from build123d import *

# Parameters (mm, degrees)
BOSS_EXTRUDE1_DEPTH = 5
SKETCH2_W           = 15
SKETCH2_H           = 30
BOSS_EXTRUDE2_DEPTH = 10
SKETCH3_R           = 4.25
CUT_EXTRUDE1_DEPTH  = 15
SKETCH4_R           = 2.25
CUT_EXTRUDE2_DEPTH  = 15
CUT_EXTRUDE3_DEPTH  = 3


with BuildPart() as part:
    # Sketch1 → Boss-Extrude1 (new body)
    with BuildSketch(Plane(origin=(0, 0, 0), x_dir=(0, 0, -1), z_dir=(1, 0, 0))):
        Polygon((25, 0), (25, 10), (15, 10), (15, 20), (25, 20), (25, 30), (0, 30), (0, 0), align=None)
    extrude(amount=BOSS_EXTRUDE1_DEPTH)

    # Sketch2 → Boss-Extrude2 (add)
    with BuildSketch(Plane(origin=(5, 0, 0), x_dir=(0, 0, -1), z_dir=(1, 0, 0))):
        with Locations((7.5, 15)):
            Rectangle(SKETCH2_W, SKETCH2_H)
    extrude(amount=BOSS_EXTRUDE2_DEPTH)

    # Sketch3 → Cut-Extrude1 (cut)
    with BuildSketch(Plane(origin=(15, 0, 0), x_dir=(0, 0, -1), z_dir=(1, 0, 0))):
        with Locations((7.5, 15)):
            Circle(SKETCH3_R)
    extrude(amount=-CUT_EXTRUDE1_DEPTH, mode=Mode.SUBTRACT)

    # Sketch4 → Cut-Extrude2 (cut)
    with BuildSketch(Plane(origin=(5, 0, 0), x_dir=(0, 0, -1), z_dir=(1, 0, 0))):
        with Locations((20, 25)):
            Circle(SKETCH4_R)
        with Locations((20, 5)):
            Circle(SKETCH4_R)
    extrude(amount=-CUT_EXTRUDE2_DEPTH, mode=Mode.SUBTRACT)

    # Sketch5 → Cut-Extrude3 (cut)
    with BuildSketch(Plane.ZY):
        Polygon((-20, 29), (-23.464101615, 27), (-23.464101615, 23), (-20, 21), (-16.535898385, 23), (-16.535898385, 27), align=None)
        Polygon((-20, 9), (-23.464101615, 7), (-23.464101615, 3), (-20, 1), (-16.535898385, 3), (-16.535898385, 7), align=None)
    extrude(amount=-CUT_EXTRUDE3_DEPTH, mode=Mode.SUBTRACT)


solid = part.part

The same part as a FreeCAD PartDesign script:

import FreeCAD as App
import Part
import Sketcher

V = App.Vector
Q = App.Units.Quantity

doc = App.newDocument("Part")
body = doc.addObject("PartDesign::Body", "Body")

# Sketch on YZ plane
sketch1 = body.newObject("Sketcher::SketchObject", "Sketch")
sketch1.AttachmentSupport = (doc.getObject("YZ_Plane"), [""])
sketch1.MapMode = "FlatFace"
sketch1.addGeometry(Part.LineSegment(V(0, -25, 0), V(10, -25, 0)), False)
sketch1.addGeometry(Part.LineSegment(V(10, -25, 0), V(10, -15, 0)), False)
sketch1.addGeometry(Part.LineSegment(V(10, -15, 0), V(20, -15, 0)), False)
sketch1.addGeometry(Part.LineSegment(V(20, -15, 0), V(20, -25, 0)), False)
sketch1.addGeometry(Part.LineSegment(V(20, -25, 0), V(30, -25, 0)), False)
sketch1.addGeometry(Part.LineSegment(V(30, -25, 0), V(30, 0, 0)), False)
sketch1.addGeometry(Part.LineSegment(V(30, 0, 0), V(0, 0, 0)), False)
sketch1.addGeometry(Part.LineSegment(V(0, 0, 0), V(0, -25, 0)), False)
sketch1.addConstraint(Sketcher.Constraint("Coincident", 0, 2, 1, 1))
sketch1.addConstraint(Sketcher.Constraint("Coincident", 1, 2, 2, 1))
sketch1.addConstraint(Sketcher.Constraint("Coincident", 2, 2, 3, 1))
sketch1.addConstraint(Sketcher.Constraint("Coincident", 3, 2, 4, 1))
sketch1.addConstraint(Sketcher.Constraint("Coincident", 4, 2, 5, 1))
sketch1.addConstraint(Sketcher.Constraint("Coincident", 5, 2, 6, 1))
sketch1.addConstraint(Sketcher.Constraint("Coincident", 6, 2, 7, 1))
sketch1.addConstraint(Sketcher.Constraint("Coincident", 7, 2, 0, 1))
sketch1.addConstraint(Sketcher.Constraint("Horizontal", 0))
sketch1.addConstraint(Sketcher.Constraint("Vertical", 1))
sketch1.addConstraint(Sketcher.Constraint("Horizontal", 2))
sketch1.addConstraint(Sketcher.Constraint("Vertical", 3))
sketch1.addConstraint(Sketcher.Constraint("Horizontal", 4))
sketch1.addConstraint(Sketcher.Constraint("Vertical", 5))
sketch1.addConstraint(Sketcher.Constraint("Horizontal", 6))
sketch1.addConstraint(Sketcher.Constraint("Vertical", 7))
sketch1.addConstraint(Sketcher.Constraint("Coincident", 6, 2, -1, 1))
sketch1.addConstraint(Sketcher.Constraint("Horizontal", 0, 2, 3, 2))
sketch1.addConstraint(Sketcher.Constraint("Equal", 0, 2))
sketch1.addConstraint(Sketcher.Constraint("Equal", 2, 4))
sketch1.addConstraint(Sketcher.Constraint("Equal", 4, 1))
sketch1.addConstraint(Sketcher.Constraint("DistanceX", 0, 1, 0, 2, Q("10 mm")))
sketch1.addConstraint(Sketcher.Constraint("DistanceY", 5, 1, 5, 2, Q("25 mm")))
pad1 = body.newObject("PartDesign::Pad", "Pad")
pad1.Profile = sketch1
pad1.Length = 5

# Sketch on YZ plane
sketch2 = body.newObject("Sketcher::SketchObject", "Sketch001")
sketch2.AttachmentSupport = (doc.getObject("YZ_Plane"), [""])
sketch2.MapMode = "FlatFace"
sketch2.AttachmentOffset = App.Placement(V(0, 0, 5), App.Rotation())
sketch2.addGeometry(Part.LineSegment(V(30, 0, 0), V(0, 0, 0)), False)
sketch2.addGeometry(Part.LineSegment(V(0, 0, 0), V(0, -15, 0)), False)
sketch2.addGeometry(Part.LineSegment(V(0, -15, 0), V(30, -15, 0)), False)
sketch2.addGeometry(Part.LineSegment(V(30, -15, 0), V(30, 0, 0)), False)
sketch2.addConstraint(Sketcher.Constraint("Coincident", 0, 2, 1, 1))
sketch2.addConstraint(Sketcher.Constraint("Coincident", 1, 2, 2, 1))
sketch2.addConstraint(Sketcher.Constraint("Coincident", 2, 2, 3, 1))
sketch2.addConstraint(Sketcher.Constraint("Coincident", 3, 2, 0, 1))
sketch2.addConstraint(Sketcher.Constraint("Horizontal", 0))
sketch2.addConstraint(Sketcher.Constraint("Vertical", 1))
sketch2.addConstraint(Sketcher.Constraint("Horizontal", 2))
sketch2.addConstraint(Sketcher.Constraint("Vertical", 3))
sketch2.addConstraint(Sketcher.Constraint("Coincident", 0, 2, -1, 1))
sketch2.addConstraint(Sketcher.Constraint("DistanceX", 0, 2, 0, 1, Q("30 mm")))
sketch2.addConstraint(Sketcher.Constraint("DistanceY", 1, 2, 1, 1, Q("15 mm")))
pad2 = body.newObject("PartDesign::Pad", "Pad001")
pad2.Profile = sketch2
pad2.Length = 10

# Sketch on YZ plane
sketch3 = body.newObject("Sketcher::SketchObject", "Sketch002")
sketch3.AttachmentSupport = (doc.getObject("YZ_Plane"), [""])
sketch3.MapMode = "FlatFace"
sketch3.AttachmentOffset = App.Placement(V(0, 0, 15), App.Rotation())
sketch3.addGeometry(Part.Circle(V(15, -7.5, 0), V(0, 0, 1), 4.2), False)
sketch3.addConstraint(Sketcher.Constraint("Diameter", 0, Q("8.5 mm")))
sketch3.addConstraint(Sketcher.Constraint("DistanceX", -1, 1, 0, 3, Q("15 mm")))
sketch3.addConstraint(Sketcher.Constraint("DistanceY", 0, 3, -1, 1, Q("7.5 mm")))
pocket1 = body.newObject("PartDesign::Pocket", "Pocket")
pocket1.Profile = sketch3
pocket1.Length = 15

# Sketch on YZ plane
sketch4 = body.newObject("Sketcher::SketchObject", "Sketch003")
sketch4.AttachmentSupport = (doc.getObject("YZ_Plane"), [""])
sketch4.MapMode = "FlatFace"
sketch4.AttachmentOffset = App.Placement(V(0, 0, 5), App.Rotation())
sketch4.addGeometry(Part.Circle(V(25, -20, 0), V(0, 0, 1), 2.2), False)
sketch4.addGeometry(Part.Circle(V(5, -20, 0), V(0, 0, 1), 2.2), False)
sketch4.addConstraint(Sketcher.Constraint("Equal", 0, 1))
sketch4.addConstraint(Sketcher.Constraint("Horizontal", 0, 3, 1, 3))
sketch4.addConstraint(Sketcher.Constraint("Diameter", 0, Q("4.5 mm")))
sketch4.addConstraint(Sketcher.Constraint("DistanceX", -1, 1, 0, 3, Q("25 mm")))
sketch4.addConstraint(Sketcher.Constraint("DistanceY", 0, 3, -1, 1, Q("20 mm")))
sketch4.addConstraint(Sketcher.Constraint("DistanceX", -1, 1, 1, 3, Q("5 mm")))
pocket2 = body.newObject("PartDesign::Pocket", "Pocket001")
pocket2.Profile = sketch4
pocket2.Length = 15

# Sketch on YZ plane
sketch5 = body.newObject("Sketcher::SketchObject", "Sketch004")
sketch5.AttachmentSupport = (doc.getObject("YZ_Plane"), [""])
sketch5.MapMode = "FlatFace"
sketch5.addGeometry(Part.LineSegment(V(29, -20, 0), V(27, -23.5, 0)), False)
sketch5.addGeometry(Part.LineSegment(V(27, -23.5, 0), V(23, -23.5, 0)), False)
sketch5.addGeometry(Part.LineSegment(V(23, -23.5, 0), V(21, -20, 0)), False)
sketch5.addGeometry(Part.LineSegment(V(21, -20, 0), V(23, -16.5, 0)), False)
sketch5.addGeometry(Part.LineSegment(V(23, -16.5, 0), V(27, -16.5, 0)), False)
sketch5.addGeometry(Part.LineSegment(V(27, -16.5, 0), V(29, -20, 0)), False)
sketch5.addGeometry(Part.LineSegment(V(9, -20, 0), V(7, -23.5, 0)), False)
sketch5.addGeometry(Part.LineSegment(V(7, -23.5, 0), V(3, -23.5, 0)), False)
sketch5.addGeometry(Part.LineSegment(V(3, -23.5, 0), V(1, -20, 0)), False)
sketch5.addGeometry(Part.LineSegment(V(1, -20, 0), V(3, -16.5, 0)), False)
sketch5.addGeometry(Part.LineSegment(V(3, -16.5, 0), V(7, -16.5, 0)), False)
sketch5.addGeometry(Part.LineSegment(V(7, -16.5, 0), V(9, -20, 0)), False)
sketch5.addConstraint(Sketcher.Constraint("Coincident", 0, 2, 1, 1))
sketch5.addConstraint(Sketcher.Constraint("Coincident", 1, 2, 2, 1))
sketch5.addConstraint(Sketcher.Constraint("Coincident", 2, 2, 3, 1))
sketch5.addConstraint(Sketcher.Constraint("Coincident", 3, 2, 4, 1))
sketch5.addConstraint(Sketcher.Constraint("Coincident", 4, 2, 5, 1))
sketch5.addConstraint(Sketcher.Constraint("Coincident", 5, 2, 0, 1))
sketch5.addConstraint(Sketcher.Constraint("Coincident", 6, 2, 7, 1))
sketch5.addConstraint(Sketcher.Constraint("Coincident", 7, 2, 8, 1))
sketch5.addConstraint(Sketcher.Constraint("Coincident", 8, 2, 9, 1))
sketch5.addConstraint(Sketcher.Constraint("Coincident", 9, 2, 10, 1))
sketch5.addConstraint(Sketcher.Constraint("Coincident", 10, 2, 11, 1))
sketch5.addConstraint(Sketcher.Constraint("Coincident", 11, 2, 6, 1))
sketch5.addConstraint(Sketcher.Constraint("Horizontal", 1))
sketch5.addConstraint(Sketcher.Constraint("Horizontal", 4))
sketch5.addConstraint(Sketcher.Constraint("Horizontal", 7))
sketch5.addConstraint(Sketcher.Constraint("Horizontal", 10))
sketch5.addConstraint(Sketcher.Constraint("Parallel", 0, 3))
sketch5.addConstraint(Sketcher.Constraint("Parallel", 2, 5))
sketch5.addConstraint(Sketcher.Constraint("Parallel", 3, 6))
sketch5.addConstraint(Sketcher.Constraint("Parallel", 5, 8))
sketch5.addConstraint(Sketcher.Constraint("Parallel", 6, 9))
sketch5.addConstraint(Sketcher.Constraint("Parallel", 8, 11))
sketch5.addConstraint(Sketcher.Constraint("Horizontal", 2, 2, 5, 2))
sketch5.addConstraint(Sketcher.Constraint("Horizontal", 1, 2, 6, 2))
sketch5.addConstraint(Sketcher.Constraint("Horizontal", 5, 2, 8, 2))
sketch5.addConstraint(Sketcher.Constraint("Horizontal", 4, 2, 9, 2))
sketch5.addConstraint(Sketcher.Constraint("Horizontal", 8, 2, 11, 2))
sketch5.addConstraint(Sketcher.Constraint("Vertical", 1, 2, 3, 2))
sketch5.addConstraint(Sketcher.Constraint("Vertical", 0, 2, 4, 2))
sketch5.addConstraint(Sketcher.Constraint("Equal", 4, 7))
sketch5.addConstraint(Sketcher.Constraint("DistanceX", 1, 2, 1, 1, Q("4 mm")))
sketch5.addConstraint(Sketcher.Constraint("Angle", 0, Q("-120 deg")))
sketch5.addConstraint(Sketcher.Constraint("Distance", 0, Q("4 mm")))
sketch5.addConstraint(Sketcher.Constraint("DistanceX", -1, 1, 0, 2, Q("27 mm")))
sketch5.addConstraint(Sketcher.Constraint("DistanceY", 2, 2, -1, 1, Q("20 mm")))
sketch5.addConstraint(Sketcher.Constraint("DistanceX", -1, 1, 6, 2, Q("7 mm")))
pocket3 = body.newObject("PartDesign::Pocket", "Pocket002")
pocket3.Profile = sketch5
pocket3.Length = 3
pocket3.Reversed = True

doc.recompute()
